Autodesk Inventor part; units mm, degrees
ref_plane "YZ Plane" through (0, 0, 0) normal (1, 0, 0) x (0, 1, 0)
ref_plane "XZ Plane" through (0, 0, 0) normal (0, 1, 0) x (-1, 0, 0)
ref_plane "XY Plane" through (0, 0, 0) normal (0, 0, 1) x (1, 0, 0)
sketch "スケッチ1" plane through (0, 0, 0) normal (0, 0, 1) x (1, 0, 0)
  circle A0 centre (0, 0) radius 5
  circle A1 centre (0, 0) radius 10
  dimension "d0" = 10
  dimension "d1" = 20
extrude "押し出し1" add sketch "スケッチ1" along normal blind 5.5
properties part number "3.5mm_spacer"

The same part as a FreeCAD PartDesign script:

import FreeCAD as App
import Part
import Sketcher
from FreeCAD import Vector
Q = App.Units.Quantity

doc = App.newDocument("Part")
body = doc.addObject("PartDesign::Body", "Body")

# Sketch on XY plane
sketch1 = body.newObject("Sketcher::SketchObject", "Sketch")
sketch1.AttachmentSupport = (doc.getObject("XY_Plane"), [""])
sketch1.MapMode = "FlatFace"
sketch1.addGeometry(Part.Circle(Vector(0, 0, 0), Vector(0, 0, 1), 10), False)
sketch1.addGeometry(Part.Circle(Vector(0, 0, 0), Vector(0, 0, 1), 5), False)
sketch1.addConstraint(Sketcher.Constraint("Coincident", 0, 3, -1, 1))
sketch1.addConstraint(Sketcher.Constraint("Coincident", 1, 3, -1, 1))
sketch1.addConstraint(Sketcher.Constraint("Diameter", 0, Q("20 mm")))
sketch1.addConstraint(Sketcher.Constraint("Diameter", 1, Q("10 mm")))
pad1 = body.newObject("PartDesign::Pad", "Pad")
pad1.Profile = sketch1
pad1.Length = 5.5

doc.recompute()
